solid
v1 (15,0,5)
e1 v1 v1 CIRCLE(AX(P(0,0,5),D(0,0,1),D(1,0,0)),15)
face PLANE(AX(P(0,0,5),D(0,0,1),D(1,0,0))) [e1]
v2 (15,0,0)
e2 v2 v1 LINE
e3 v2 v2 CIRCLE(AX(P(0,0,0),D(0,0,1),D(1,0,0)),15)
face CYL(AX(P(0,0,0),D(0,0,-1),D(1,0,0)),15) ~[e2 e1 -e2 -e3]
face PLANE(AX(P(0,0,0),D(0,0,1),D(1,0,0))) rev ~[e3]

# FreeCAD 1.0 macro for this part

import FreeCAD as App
import Part
import Sketcher
Q = App.Units.Quantity

doc = App.newDocument("Part")
body = doc.addObject("PartDesign::Body", "Body")

sketch1 = body.newObject("Sketcher::SketchObject", "Sketch")
sketch1.AttachmentSupport = (doc.getObject("XY_Plane"), [""])
sketch1.MapMode = "FlatFace"
sketch1.addGeometry(Part.Circle(App.Vector(0, 0, 0), App.Vector(0, 0, 1), 15), False)
sketch1.addConstraint([
    Sketcher.Constraint("Coincident", 0, 3, -1, 1),
    Sketcher.Constraint("Diameter", 0, Q("30 mm")),
])
pad1 = body.newObject("PartDesign::Pad", "Pad")
pad1.Profile = sketch1
pad1.Length = 5

doc.recompute()
